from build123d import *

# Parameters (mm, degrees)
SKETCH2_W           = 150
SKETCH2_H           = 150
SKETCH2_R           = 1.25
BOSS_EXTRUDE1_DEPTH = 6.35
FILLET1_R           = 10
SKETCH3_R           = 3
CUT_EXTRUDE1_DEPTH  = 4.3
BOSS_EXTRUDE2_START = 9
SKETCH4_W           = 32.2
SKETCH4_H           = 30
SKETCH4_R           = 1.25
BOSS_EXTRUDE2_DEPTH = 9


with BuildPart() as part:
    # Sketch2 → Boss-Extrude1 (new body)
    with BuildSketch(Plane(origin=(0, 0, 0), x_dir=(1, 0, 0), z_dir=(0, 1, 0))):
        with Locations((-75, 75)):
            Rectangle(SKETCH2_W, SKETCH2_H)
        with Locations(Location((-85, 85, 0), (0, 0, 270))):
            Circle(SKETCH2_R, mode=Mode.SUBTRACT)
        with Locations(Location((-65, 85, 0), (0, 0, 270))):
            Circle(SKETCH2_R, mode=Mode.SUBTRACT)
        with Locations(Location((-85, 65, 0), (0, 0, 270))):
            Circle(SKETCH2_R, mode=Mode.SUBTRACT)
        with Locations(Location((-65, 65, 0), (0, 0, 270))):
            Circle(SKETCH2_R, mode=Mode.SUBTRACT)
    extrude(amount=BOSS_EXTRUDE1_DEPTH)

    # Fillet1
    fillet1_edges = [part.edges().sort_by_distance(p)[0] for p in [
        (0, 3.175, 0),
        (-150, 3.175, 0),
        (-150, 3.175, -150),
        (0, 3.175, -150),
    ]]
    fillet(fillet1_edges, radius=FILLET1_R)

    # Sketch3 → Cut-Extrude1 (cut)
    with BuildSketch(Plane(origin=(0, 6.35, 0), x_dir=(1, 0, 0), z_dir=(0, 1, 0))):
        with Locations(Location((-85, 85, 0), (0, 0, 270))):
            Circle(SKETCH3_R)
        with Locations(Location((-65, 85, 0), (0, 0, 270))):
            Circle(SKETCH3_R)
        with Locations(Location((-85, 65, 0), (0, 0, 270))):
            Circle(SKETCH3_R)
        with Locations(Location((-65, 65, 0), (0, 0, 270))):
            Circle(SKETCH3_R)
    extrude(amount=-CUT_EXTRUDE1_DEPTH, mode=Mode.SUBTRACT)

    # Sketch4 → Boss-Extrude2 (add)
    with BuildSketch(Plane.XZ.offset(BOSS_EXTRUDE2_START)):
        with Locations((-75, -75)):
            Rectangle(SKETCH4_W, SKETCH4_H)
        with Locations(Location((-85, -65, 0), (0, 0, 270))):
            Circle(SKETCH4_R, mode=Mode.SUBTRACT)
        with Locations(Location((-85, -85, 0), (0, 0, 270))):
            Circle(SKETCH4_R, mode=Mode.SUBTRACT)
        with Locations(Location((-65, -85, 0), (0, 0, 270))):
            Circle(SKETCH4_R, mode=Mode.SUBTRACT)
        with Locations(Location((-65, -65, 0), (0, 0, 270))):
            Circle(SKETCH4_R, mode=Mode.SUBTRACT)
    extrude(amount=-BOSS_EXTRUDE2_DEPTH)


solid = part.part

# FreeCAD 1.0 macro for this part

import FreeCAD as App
import Part
import Sketcher

V = App.Vector


def edges_at(feature, points):
    """Names of the edges that pass closest to the given points."""
    edges = feature.Shape.Edges
    near = lambda p: min(range(len(edges)), key=lambda i: edges[i].distToShape(Part.Vertex(*p))[0])
    return sorted({f"Edge{near(p) + 1}" for p in points})


def add_polygon(sketch, points):
    """Adds a closed chain of lines whose ends are joined by coincident constraints."""
    first, n = sketch.GeometryCount, len(points)
    for a, b in zip(points, points[1:] + points[:1]):
        sketch.addGeometry(Part.LineSegment(App.Vector(*a, 0), App.Vector(*b, 0)), False)
    for i in range(n):
        sketch.addConstraint(Sketcher.Constraint("Coincident", first + i, 2, first + (i + 1) % n, 1))

doc = App.newDocument("Part")
params = doc.addObject("Spreadsheet::Sheet", "Params")
for row, (alias, value) in enumerate([
    ("sketch1_diameter", "2.5 mm"),
    ("sketch1_width", "150 mm"),
    ("pad1_length", "6.35 mm"),
    ("fillet_radius", "10 mm"),
    ("sketch2_diameter", "6 mm"),
    ("pocket1_length", "4.3 mm"),
    ("sketch3_diameter", "2.5 mm"),
    ("sketch3_height", "30 mm"),
    ("sketch3_width", "32.2 mm"),
    ("pad2_length", "9 mm"),
], start=1):
    params.set(f"A{row}", alias)
    params.set(f"B{row}", "=" + value)
    params.setAlias(f"B{row}", alias)

body = doc.addObject("PartDesign::Body", "Body")

sketch1 = body.newObject("Sketcher::SketchObject", "Sketch")
sketch1.AttachmentSupport = (doc.getObject("XZ_Plane"), [""])
sketch1.MapMode = "FlatFace"
add_polygon(sketch1, [(-150, -150), (-150, 0), (0, 0), (0, -150)])
sketch1.addGeometry(Part.Circle(V(-85, -65, 0), V(0, 0, 1), 1.2), False)
sketch1.addGeometry(Part.Circle(V(-65, -65, 0), V(0, 0, 1), 1.2), False)
sketch1.addGeometry(Part.Circle(V(-85, -85, 0), V(0, 0, 1), 1.2), False)
sketch1.addGeometry(Part.Circle(V(-65, -85, 0), V(0, 0, 1), 1.2), False)
sketch1.addConstraint([
    Sketcher.Constraint("Vertical", 0),
    Sketcher.Constraint("Horizontal", 1),
    Sketcher.Constraint("Vertical", 2),
    Sketcher.Constraint("Horizontal", 3),
    Sketcher.Constraint("Coincident", 1, 2, -1, 1),
    Sketcher.Constraint("Equal", 4, 5),
    Sketcher.Constraint("Equal", 5, 6),
    Sketcher.Constraint("Equal", 6, 7),
    Sketcher.Constraint("Horizontal", 4, 3, 5, 3),
    Sketcher.Constraint("Horizontal", 6, 3, 7, 3),
    Sketcher.Constraint("Vertical", 4, 3, 6, 3),
    Sketcher.Constraint("Vertical", 5, 3, 7, 3),
    Sketcher.Constraint("Equal", 3, 0),
    Sketcher.Constraint("Diameter", 4, 2.5),
    Sketcher.Constraint("DistanceX", 1, 1, 1, 2, 150.0),
    Sketcher.Constraint("DistanceX", 4, 3, -1, 1, 85.0),
    Sketcher.Constraint("DistanceY", 4, 3, -1, 1, 65.0),
    Sketcher.Constraint("DistanceX", 5, 3, -1, 1, 65.0),
    Sketcher.Constraint("DistanceY", 6, 3, -1, 1, 85.0),
])
sketch1.setExpression("Constraints[17]", "Params.sketch1_diameter")
sketch1.setExpression("Constraints[18]", "Params.sketch1_width")
pad1 = body.newObject("PartDesign::Pad", "Pad")
pad1.Profile = sketch1
pad1.setExpression("Length", "Params.pad1_length")
pad1.Reversed = True
doc.recompute()

fillet = body.newObject("PartDesign::Fillet", "Fillet")
fillet.Base = (pad1, edges_at(pad1, [
    (0, 3.175, 0),
    (-150, 3.175, 0),
    (-150, 3.175, -150),
    (0, 3.175, -150),
]))
fillet.setExpression("Radius", "Params.fillet_radius")

sketch2 = body.newObject("Sketcher::SketchObject", "Sketch001")
sketch2.AttachmentSupport = (doc.getObject("XZ_Plane"), [""])
sketch2.MapMode = "FlatFace"
sketch2.AttachmentOffset = App.Placement(V(0, 0, -6.35), App.Rotation())
sketch2.addGeometry([
    Part.Circle(V(-85, -85, 0), V(0, 0, 1), 3),
    Part.Circle(V(-65, -85, 0), V(0, 0, 1), 3),
    Part.Circle(V(-85, -65, 0), V(0, 0, 1), 3),
    Part.Circle(V(-65, -65, 0), V(0, 0, 1), 3),
], False)
sketch2.addConstraint([
    Sketcher.Constraint("Equal", 0, 1),
    Sketcher.Constraint("Equal", 1, 2),
    Sketcher.Constraint("Equal", 2, 3),
    Sketcher.Constraint("Horizontal", 0, 3, 1, 3),
    Sketcher.Constraint("Horizontal", 2, 3, 3, 3),
    Sketcher.Constraint("Vertical", 0, 3, 2, 3),
    Sketcher.Constraint("Vertical", 1, 3, 3, 3),
    Sketcher.Constraint("Diameter", 0, 6.0),
    Sketcher.Constraint("DistanceX", 0, 3, -1, 1, 85.0),
    Sketcher.Constraint("DistanceY", 0, 3, -1, 1, 85.0),
    Sketcher.Constraint("DistanceX", 1, 3, -1, 1, 65.0),
    Sketcher.Constraint("DistanceY", 2, 3, -1, 1, 65.0),
])
sketch2.setExpression("Constraints[7]", "Params.sketch2_diameter")
pocket1 = body.newObject("PartDesign::Pocket", "Pocket")
pocket1.Profile = sketch2
pocket1.setExpression("Length", "Params.pocket1_length")
pocket1.Reversed = True

sketch3 = body.newObject("Sketcher::SketchObject", "Sketch002")
sketch3.AttachmentSupport = (doc.getObject("XZ_Plane"), [""])
sketch3.MapMode = "FlatFace"
sketch3.AttachmentOffset = App.Placement(V(0, 0, 9), App.Rotation())
add_polygon(sketch3, [(-91.1, -60), (-91.1, -90), (-58.9, -90), (-58.9, -60)])
sketch3.addGeometry(Part.Circle(V(-85, -85, 0), V(0, 0, 1), 1.2), False)
sketch3.addGeometry(Part.Circle(V(-65, -85, 0), V(0, 0, 1), 1.2), False)
sketch3.addGeometry(Part.Circle(V(-85, -65, 0), V(0, 0, 1), 1.2), False)
sketch3.addGeometry(Part.Circle(V(-65, -65, 0), V(0, 0, 1), 1.2), False)
sketch3.addConstraint([
    Sketcher.Constraint("Vertical", 0),
    Sketcher.Constraint("Horizontal", 1),
    Sketcher.Constraint("Vertical", 2),
    Sketcher.Constraint("Horizontal", 3),
    Sketcher.Constraint("Equal", 4, 5),
    Sketcher.Constraint("Equal", 5, 6),
    Sketcher.Constraint("Equal", 6, 7),
    Sketcher.Constraint("Horizontal", 4, 3, 5, 3),
    Sketcher.Constraint("Horizontal", 6, 3, 7, 3),
    Sketcher.Constraint("Vertical", 4, 3, 6, 3),
    Sketcher.Constraint("Vertical", 5, 3, 7, 3),
    Sketcher.Constraint("Diameter", 4, 2.5),
    Sketcher.Constraint("DistanceY", 0, 2, 0, 1, 30.0),
    Sketcher.Constraint("DistanceX", 1, 1, 1, 2, 32.2),
    Sketcher.Constraint("DistanceX", 4, 3, -1, 1, 85.0),
    Sketcher.Constraint("DistanceY", 4, 3, -1, 1, 85.0),
    Sketcher.Constraint("DistanceX", 5, 3, -1, 1, 65.0),
    Sketcher.Constraint("DistanceY", 6, 3, -1, 1, 65.0),
    Sketcher.Constraint("DistanceY", 0, 2, -1, 1, 90.0),
    Sketcher.Constraint("DistanceX", 0, 2, -1, 1, 91.1),
])
sketch3.setExpression("Constraints[15]", "Params.sketch3_diameter")
sketch3.setExpression("Constraints[16]", "Params.sketch3_height")
sketch3.setExpression("Constraints[17]", "Params.sketch3_width")
pad2 = body.newObject("PartDesign::Pad", "Pad001")
pad2.Profile = sketch3
pad2.setExpression("Length", "Params.pad2_length")
pad2.Reversed = True

doc.recompute()
